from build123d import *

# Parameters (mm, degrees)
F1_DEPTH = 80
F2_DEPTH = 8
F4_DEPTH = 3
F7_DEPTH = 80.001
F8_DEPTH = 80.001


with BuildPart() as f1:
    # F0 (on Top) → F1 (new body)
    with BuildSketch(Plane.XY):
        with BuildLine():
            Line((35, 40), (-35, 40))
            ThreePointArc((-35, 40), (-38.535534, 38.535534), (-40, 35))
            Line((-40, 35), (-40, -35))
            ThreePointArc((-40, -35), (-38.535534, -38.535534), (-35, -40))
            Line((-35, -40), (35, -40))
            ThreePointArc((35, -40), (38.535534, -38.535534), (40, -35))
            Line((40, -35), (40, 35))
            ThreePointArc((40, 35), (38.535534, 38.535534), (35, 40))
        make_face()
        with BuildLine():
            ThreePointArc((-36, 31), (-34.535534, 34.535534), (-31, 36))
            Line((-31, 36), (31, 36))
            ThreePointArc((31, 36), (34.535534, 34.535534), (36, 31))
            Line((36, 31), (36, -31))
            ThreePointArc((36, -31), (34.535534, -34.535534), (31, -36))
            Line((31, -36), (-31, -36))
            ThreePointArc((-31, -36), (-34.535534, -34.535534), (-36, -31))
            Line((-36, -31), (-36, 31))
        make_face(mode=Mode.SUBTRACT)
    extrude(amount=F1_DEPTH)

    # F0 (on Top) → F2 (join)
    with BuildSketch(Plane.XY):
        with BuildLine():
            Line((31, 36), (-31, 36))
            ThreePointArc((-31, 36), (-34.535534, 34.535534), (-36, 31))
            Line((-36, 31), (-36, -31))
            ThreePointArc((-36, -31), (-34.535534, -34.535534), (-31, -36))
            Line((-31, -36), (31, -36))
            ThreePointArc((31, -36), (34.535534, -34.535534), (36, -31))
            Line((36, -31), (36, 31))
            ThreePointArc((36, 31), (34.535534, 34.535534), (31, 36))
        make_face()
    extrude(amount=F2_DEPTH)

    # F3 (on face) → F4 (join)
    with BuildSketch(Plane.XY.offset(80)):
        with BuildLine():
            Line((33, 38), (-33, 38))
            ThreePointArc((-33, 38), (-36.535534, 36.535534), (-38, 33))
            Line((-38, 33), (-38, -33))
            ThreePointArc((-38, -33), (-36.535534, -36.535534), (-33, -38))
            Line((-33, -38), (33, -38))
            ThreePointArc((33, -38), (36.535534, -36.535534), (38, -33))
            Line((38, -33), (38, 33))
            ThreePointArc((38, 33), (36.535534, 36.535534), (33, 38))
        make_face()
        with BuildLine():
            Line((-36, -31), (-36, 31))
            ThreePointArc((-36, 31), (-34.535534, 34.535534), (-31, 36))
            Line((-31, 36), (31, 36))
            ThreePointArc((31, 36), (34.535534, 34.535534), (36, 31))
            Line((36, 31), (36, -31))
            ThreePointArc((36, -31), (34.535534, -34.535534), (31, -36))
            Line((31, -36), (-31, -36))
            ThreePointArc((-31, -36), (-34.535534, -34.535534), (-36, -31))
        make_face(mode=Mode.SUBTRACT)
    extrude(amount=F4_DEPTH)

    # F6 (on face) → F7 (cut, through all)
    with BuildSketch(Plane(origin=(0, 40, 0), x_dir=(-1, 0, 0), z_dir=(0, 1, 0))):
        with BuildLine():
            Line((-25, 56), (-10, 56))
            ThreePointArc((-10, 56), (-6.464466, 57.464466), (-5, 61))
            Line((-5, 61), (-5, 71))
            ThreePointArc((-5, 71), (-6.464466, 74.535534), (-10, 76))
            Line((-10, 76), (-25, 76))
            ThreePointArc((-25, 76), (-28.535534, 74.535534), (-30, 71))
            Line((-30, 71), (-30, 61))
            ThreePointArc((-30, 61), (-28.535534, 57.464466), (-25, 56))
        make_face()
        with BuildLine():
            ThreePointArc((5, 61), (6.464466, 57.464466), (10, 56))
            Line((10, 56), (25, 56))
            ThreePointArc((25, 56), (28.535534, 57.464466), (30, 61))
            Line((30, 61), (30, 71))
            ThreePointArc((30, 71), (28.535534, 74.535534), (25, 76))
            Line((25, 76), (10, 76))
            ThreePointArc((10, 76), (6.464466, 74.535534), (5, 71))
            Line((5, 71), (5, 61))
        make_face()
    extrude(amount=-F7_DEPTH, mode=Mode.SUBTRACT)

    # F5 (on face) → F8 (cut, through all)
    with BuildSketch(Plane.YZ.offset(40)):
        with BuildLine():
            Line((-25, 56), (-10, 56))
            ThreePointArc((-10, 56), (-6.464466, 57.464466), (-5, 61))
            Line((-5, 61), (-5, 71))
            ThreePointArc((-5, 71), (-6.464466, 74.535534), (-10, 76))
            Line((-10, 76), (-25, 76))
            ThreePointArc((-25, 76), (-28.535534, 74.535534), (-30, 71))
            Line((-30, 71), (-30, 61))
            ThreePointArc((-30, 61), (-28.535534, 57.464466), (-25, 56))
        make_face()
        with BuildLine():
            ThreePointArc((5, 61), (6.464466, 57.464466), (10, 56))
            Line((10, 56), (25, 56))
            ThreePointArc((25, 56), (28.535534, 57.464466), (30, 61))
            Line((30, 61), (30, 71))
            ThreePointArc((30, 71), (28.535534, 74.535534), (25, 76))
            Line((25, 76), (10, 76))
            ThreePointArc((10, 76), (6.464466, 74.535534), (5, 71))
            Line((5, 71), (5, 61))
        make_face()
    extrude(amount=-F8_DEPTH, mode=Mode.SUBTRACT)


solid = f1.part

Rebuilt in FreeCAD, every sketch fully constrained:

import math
import FreeCAD as App
import Part
import Sketcher
from FreeCAD import Vector

doc = App.newDocument("Part")
body = doc.addObject("PartDesign::Body", "Body")

# Sketch on XY plane
sketch1 = body.newObject("Sketcher::SketchObject", "Sketch")
sketch1.AttachmentSupport = (doc.getObject("XY_Plane"), [""])
sketch1.MapMode = "FlatFace"
sketch1.addGeometry([
    Part.LineSegment(Vector(35, 40, 0), Vector(-35, 40, 0)),  # 0
    Part.ArcOfCircle(Part.Circle(Vector(-35, 35, 0), Vector(0, 0, 1), 5), math.radians(90), math.radians(180)),  # 1
    Part.LineSegment(Vector(-40, 35, 0), Vector(-40, -35, 0)),  # 2
    Part.ArcOfCircle(Part.Circle(Vector(-35, -35, 0), Vector(0, 0, 1), 5), math.radians(180), math.radians(270)),  # 3
    Part.LineSegment(Vector(-35, -40, 0), Vector(35, -40, 0)),  # 4
    Part.ArcOfCircle(Part.Circle(Vector(35, -35, 0), Vector(0, 0, 1), 5), math.radians(-90), math.radians(0)),  # 5
    Part.LineSegment(Vector(40, -35, 0), Vector(40, 35, 0)),  # 6
    Part.ArcOfCircle(Part.Circle(Vector(35, 35, 0), Vector(0, 0, 1), 5), math.radians(0), math.radians(90)),  # 7
    Part.LineSegment(Vector(-36, -31, 0), Vector(-36, 31, 0)),  # 8
    Part.ArcOfCircle(Part.Circle(Vector(-31, 31, 0), Vector(0, 0, 1), 5), math.radians(90), math.radians(180)),  # 9
    Part.LineSegment(Vector(-31, 36, 0), Vector(31, 36, 0)),  # 10
    Part.ArcOfCircle(Part.Circle(Vector(31, 31, 0), Vector(0, 0, 1), 5), math.radians(0), math.radians(90)),  # 11
    Part.LineSegment(Vector(36, 31, 0), Vector(36, -31, 0)),  # 12
    Part.ArcOfCircle(Part.Circle(Vector(31, -31, 0), Vector(0, 0, 1), 5), math.radians(-90), math.radians(0)),  # 13
    Part.LineSegment(Vector(31, -36, 0), Vector(-31, -36, 0)),  # 14
    Part.ArcOfCircle(Part.Circle(Vector(-31, -31, 0), Vector(0, 0, 1), 5), math.radians(180), math.radians(270)),  # 15
], False)
sketch1.addConstraint([
    Sketcher.Constraint("Tangent", 0, 2, 1, 1),
    Sketcher.Constraint("Tangent", 1, 2, 2, 1),
    Sketcher.Constraint("Tangent", 2, 2, 3, 1),
    Sketcher.Constraint("Tangent", 3, 2, 4, 1),
    Sketcher.Constraint("Tangent", 4, 2, 5, 1),
    Sketcher.Constraint("Tangent", 5, 2, 6, 1),
    Sketcher.Constraint("Tangent", 6, 2, 7, 1),
    Sketcher.Constraint("Tangent", 7, 2, 0, 1),
    Sketcher.Constraint("Tangent", 8, 2, 9, 2),
    Sketcher.Constraint("Tangent", 9, 1, 10, 1),
    Sketcher.Constraint("Tangent", 10, 2, 11, 2),
    Sketcher.Constraint("Tangent", 11, 1, 12, 1),
    Sketcher.Constraint("Tangent", 12, 2, 13, 2),
    Sketcher.Constraint("Tangent", 13, 1, 14, 1),
    Sketcher.Constraint("Tangent", 14, 2, 15, 2),
    Sketcher.Constraint("Tangent", 15, 1, 8, 1),
    Sketcher.Constraint("Horizontal", 0),
    Sketcher.Constraint("Vertical", 2),
    Sketcher.Constraint("Horizontal", 4),
    Sketcher.Constraint("Vertical", 6),
    Sketcher.Constraint("Vertical", 8),
    Sketcher.Constraint("Horizontal", 10),
    Sketcher.Constraint("Vertical", 12),
    Sketcher.Constraint("Horizontal", 14),
    Sketcher.Constraint("Equal", 1, 3),
    Sketcher.Constraint("Equal", 3, 5),
    Sketcher.Constraint("Equal", 5, 7),
    Sketcher.Constraint("Equal", 7, 9),
    Sketcher.Constraint("Equal", 9, 11),
    Sketcher.Constraint("Equal", 11, 13),
    Sketcher.Constraint("Equal", 13, 15),
    Sketcher.Constraint("Symmetric", 1, 3, 5, 3, -1, 1),
    Sketcher.Constraint("Symmetric", 9, 3, 13, 3, -1, 1),
    Sketcher.Constraint("Equal", 4, 2),
    Sketcher.Constraint("Equal", 14, 8),
    Sketcher.Constraint("Radius", 1, 5.0),
    Sketcher.Constraint("DistanceX", 0, 2, 0, 1, 70.0),
    Sketcher.Constraint("DistanceX", 10, 1, 10, 2, 62.0),
])
pad1 = body.newObject("PartDesign::Pad", "Pad")
pad1.Profile = sketch1
pad1.Length = 80

# Sketch on XY plane
sketch2 = body.newObject("Sketcher::SketchObject", "Sketch001")
sketch2.AttachmentSupport = (doc.getObject("XY_Plane"), [""])
sketch2.MapMode = "FlatFace"
sketch2.addGeometry([
    Part.LineSegment(Vector(31, 36, 0), Vector(-31, 36, 0)),  # 0
    Part.ArcOfCircle(Part.Circle(Vector(-31, 31, 0), Vector(0, 0, 1), 5), math.radians(90), math.radians(180)),  # 1
    Part.LineSegment(Vector(-36, 31, 0), Vector(-36, -31, 0)),  # 2
    Part.ArcOfCircle(Part.Circle(Vector(-31, -31, 0), Vector(0, 0, 1), 5), math.radians(180), math.radians(270)),  # 3
    Part.LineSegment(Vector(-31, -36, 0), Vector(31, -36, 0)),  # 4
    Part.ArcOfCircle(Part.Circle(Vector(31, -31, 0), Vector(0, 0, 1), 5), math.radians(-90), math.radians(0)),  # 5
    Part.LineSegment(Vector(36, -31, 0), Vector(36, 31, 0)),  # 6
    Part.ArcOfCircle(Part.Circle(Vector(31, 31, 0), Vector(0, 0, 1), 5), math.radians(0), math.radians(90)),  # 7
], False)
sketch2.addConstraint([
    Sketcher.Constraint("Tangent", 0, 2, 1, 1),
    Sketcher.Constraint("Tangent", 1, 2, 2, 1),
    Sketcher.Constraint("Tangent", 2, 2, 3, 1),
    Sketcher.Constraint("Tangent", 3, 2, 4, 1),
    Sketcher.Constraint("Tangent", 4, 2, 5, 1),
    Sketcher.Constraint("Tangent", 5, 2, 6, 1),
    Sketcher.Constraint("Tangent", 6, 2, 7, 1),
    Sketcher.Constraint("Tangent", 7, 2, 0, 1),
    Sketcher.Constraint("Horizontal", 0),
    Sketcher.Constraint("Vertical", 2),
    Sketcher.Constraint("Horizontal", 4),
    Sketcher.Constraint("Vertical", 6),
    Sketcher.Constraint("Equal", 1, 3),
    Sketcher.Constraint("Equal", 3, 5),
    Sketcher.Constraint("Equal", 5, 7),
    Sketcher.Constraint("Symmetric", 1, 3, 5, 3, -1, 1),
    Sketcher.Constraint("Equal", 4, 2),
    Sketcher.Constraint("Radius", 1, 5.0),
    Sketcher.Constraint("DistanceX", 0, 2, 0, 1, 62.0),
])
pad2 = body.newObject("PartDesign::Pad", "Pad001")
pad2.Profile = sketch2
pad2.Length = 8

# Sketch on XY plane
sketch3 = body.newObject("Sketcher::SketchObject", "Sketch002")
sketch3.AttachmentSupport = (doc.getObject("XY_Plane"), [""])
sketch3.MapMode = "FlatFace"
sketch3.AttachmentOffset = App.Placement(Vector(0, 0, 80), App.Rotation())
sketch3.addGeometry([
    Part.LineSegment(Vector(33, 38, 0), Vector(-33, 38, 0)),  # 0
    Part.ArcOfCircle(Part.Circle(Vector(-33, 33, 0), Vector(0, 0, 1), 5), math.radians(90), math.radians(180)),  # 1
    Part.LineSegment(Vector(-38, 33, 0), Vector(-38, -33, 0)),  # 2
    Part.ArcOfCircle(Part.Circle(Vector(-33, -33, 0), Vector(0, 0, 1), 5), math.radians(180), math.radians(270)),  # 3
    Part.LineSegment(Vector(-33, -38, 0), Vector(33, -38, 0)),  # 4
    Part.ArcOfCircle(Part.Circle(Vector(33, -33, 0), Vector(0, 0, 1), 5), math.radians(-90), math.radians(0)),  # 5
    Part.LineSegment(Vector(38, -33, 0), Vector(38, 33, 0)),  # 6
    Part.ArcOfCircle(Part.Circle(Vector(33, 33, 0), Vector(0, 0, 1), 5), math.radians(0), math.radians(90)),  # 7
    Part.ArcOfCircle(Part.Circle(Vector(-31, -31, 0), Vector(0, 0, 1), 5), math.radians(180), math.radians(270)),  # 8
    Part.LineSegment(Vector(-36, -31, 0), Vector(-36, 31, 0)),  # 9
    Part.ArcOfCircle(Part.Circle(Vector(-31, 31, 0), Vector(0, 0, 1), 5), math.radians(90), math.radians(180)),  # 10
    Part.LineSegment(Vector(-31, 36, 0), Vector(31, 36, 0)),  # 11
    Part.ArcOfCircle(Part.Circle(Vector(31, 31, 0), Vector(0, 0, 1), 5), math.radians(0), math.radians(90)),  # 12
    Part.LineSegment(Vector(36, 31, 0), Vector(36, -31, 0)),  # 13
    Part.ArcOfCircle(Part.Circle(Vector(31, -31, 0), Vector(0, 0, 1), 5), math.radians(-90), math.radians(0)),  # 14
    Part.LineSegment(Vector(31, -36, 0), Vector(-31, -36, 0)),  # 15
], False)
sketch3.addConstraint([
    Sketcher.Constraint("Tangent", 0, 2, 1, 1),
    Sketcher.Constraint("Tangent", 1, 2, 2, 1),
    Sketcher.Constraint("Tangent", 2, 2, 3, 1),
    Sketcher.Constraint("Tangent", 3, 2, 4, 1),
    Sketcher.Constraint("Tangent", 4, 2, 5, 1),
    Sketcher.Constraint("Tangent", 5, 2, 6, 1),
    Sketcher.Constraint("Tangent", 6, 2, 7, 1),
    Sketcher.Constraint("Tangent", 7, 2, 0, 1),
    Sketcher.Constraint("Tangent", 8, 1, 9, 1),
    Sketcher.Constraint("Tangent", 9, 2, 10, 2),
    Sketcher.Constraint("Tangent", 10, 1, 11, 1),
    Sketcher.Constraint("Tangent", 11, 2, 12, 2),
    Sketcher.Constraint("Tangent", 12, 1, 13, 1),
    Sketcher.Constraint("Tangent", 13, 2, 14, 2),
    Sketcher.Constraint("Tangent", 14, 1, 15, 1),
    Sketcher.Constraint("Tangent", 15, 2, 8, 2),
    Sketcher.Constraint("Horizontal", 0),
    Sketcher.Constraint("Vertical", 2),
    Sketcher.Constraint("Horizontal", 4),
    Sketcher.Constraint("Vertical", 6),
    Sketcher.Constraint("Vertical", 9),
    Sketcher.Constraint("Horizontal", 11),
    Sketcher.Constraint("Vertical", 13),
    Sketcher.Constraint("Horizontal", 15),
    Sketcher.Constraint("Equal", 1, 3),
    Sketcher.Constraint("Equal", 3, 5),
    Sketcher.Constraint("Equal", 5, 7),
    Sketcher.Constraint("Equal", 7, 8),
    Sketcher.Constraint("Equal", 8, 10),
    Sketcher.Constraint("Equal", 10, 12),
    Sketcher.Constraint("Equal", 12, 14),
    Sketcher.Constraint("Symmetric", 1, 3, 5, 3, -1, 1),
    Sketcher.Constraint("Symmetric", 8, 3, 12, 3, -1, 1),
    Sketcher.Constraint("Equal", 4, 2),
    Sketcher.Constraint("Equal", 15, 9),
    Sketcher.Constraint("Radius", 1, 5.0),
    Sketcher.Constraint("DistanceX", 0, 2, 0, 1, 66.0),
    Sketcher.Constraint("DistanceX", 11, 1, 11, 2, 62.0),
])
pad3 = body.newObject("PartDesign::Pad", "Pad002")
pad3.Profile = sketch3
pad3.Length = 3

# Sketch on XZ plane
sketch4 = body.newObject("Sketcher::SketchObject", "Sketch003")
sketch4.AttachmentSupport = (doc.getObject("XZ_Plane"), [""])
sketch4.MapMode = "FlatFace"
sketch4.AttachmentOffset = App.Placement(Vector(0, 0, -40), App.Rotation())
sketch4.addGeometry([
    Part.LineSegment(Vector(25, 56, 0), Vector(10, 56, 0)),  # 0
    Part.ArcOfCircle(Part.Circle(Vector(10, 61, 0), Vector(0, 0, 1), 5), math.radians(180), math.radians(270)),  # 1
    Part.LineSegment(Vector(5, 61, 0), Vector(5, 71, 0)),  # 2
    Part.ArcOfCircle(Part.Circle(Vector(10, 71, 0), Vector(0, 0, 1), 5), math.radians(90), math.radians(180)),  # 3
    Part.LineSegment(Vector(10, 76, 0), Vector(25, 76, 0)),  # 4
    Part.ArcOfCircle(Part.Circle(Vector(25, 71, 0), Vector(0, 0, 1), 5), math.radians(0), math.radians(90)),  # 5
    Part.LineSegment(Vector(30, 71, 0), Vector(30, 61, 0)),  # 6
    Part.ArcOfCircle(Part.Circle(Vector(25, 61, 0), Vector(0, 0, 1), 5), math.radians(-90), math.radians(0)),  # 7
    Part.ArcOfCircle(Part.Circle(Vector(-10, 61, 0), Vector(0, 0, 1), 5), math.radians(-90), math.radians(0)),  # 8
    Part.LineSegment(Vector(-10, 56, 0), Vector(-25, 56, 0)),  # 9
    Part.ArcOfCircle(Part.Circle(Vector(-25, 61, 0), Vector(0, 0, 1), 5), math.radians(180), math.radians(270)),  # 10
    Part.LineSegment(Vector(-30, 61, 0), Vector(-30, 71, 0)),  # 11
    Part.ArcOfCircle(Part.Circle(Vector(-25, 71, 0), Vector(0, 0, 1), 5), math.radians(90), math.radians(180)),  # 12
    Part.LineSegment(Vector(-25, 76, 0), Vector(-10, 76, 0)),  # 13
    Part.ArcOfCircle(Part.Circle(Vector(-10, 71, 0), Vector(0, 0, 1), 5), math.radians(0), math.radians(90)),  # 14
    Part.LineSegment(Vector(-5, 71, 0), Vector(-5, 61, 0)),  # 15
], False)
sketch4.addConstraint([
    Sketcher.Constraint("Tangent", 0, 2, 1, 2),
    Sketcher.Constraint("Tangent", 1, 1, 2, 1),
    Sketcher.Constraint("Tangent", 2, 2, 3, 2),
    Sketcher.Constraint("Tangent", 3, 1, 4, 1),
    Sketcher.Constraint("Tangent", 4, 2, 5, 2),
    Sketcher.Constraint("Tangent", 5, 1, 6, 1),
    Sketcher.Constraint("Tangent", 6, 2, 7, 2),
    Sketcher.Constraint("Tangent", 7, 1, 0, 1),
    Sketcher.Constraint("Tangent", 8, 1, 9, 1),
    Sketcher.Constraint("Tangent", 9, 2, 10, 2),
    Sketcher.Constraint("Tangent", 10, 1, 11, 1),
    Sketcher.Constraint("Tangent", 11, 2, 12, 2),
    Sketcher.Constraint("Tangent", 12, 1, 13, 1),
    Sketcher.Constraint("Tangent", 13, 2, 14, 2),
    Sketcher.Constraint("Tangent", 14, 1, 15, 1),
    Sketcher.Constraint("Tangent", 15, 2, 8, 2),
    Sketcher.Constraint("Horizontal", 0),
    Sketcher.Constraint("Vertical", 2),
    Sketcher.Constraint("Horizontal", 4),
    Sketcher.Constraint("Vertical", 6),
    Sketcher.Constraint("Horizontal", 9),
    Sketcher.Constraint("Vertical", 11),
    Sketcher.Constraint("Horizontal", 13),
    Sketcher.Constraint("Vertical", 15),
    Sketcher.Constraint("Equal", 1, 3),
    Sketcher.Constraint("Equal", 3, 5),
    Sketcher.Constraint("Equal", 5, 7),
    Sketcher.Constraint("Equal", 7, 8),
    Sketcher.Constraint("Equal", 8, 10),
    Sketcher.Constraint("Equal", 10, 12),
    Sketcher.Constraint("Equal", 12, 14),
    Sketcher.Constraint("Symmetric", 1, 3, 8, 3, -2),
    Sketcher.Constraint("Symmetric", 5, 3, 12, 3, -2),
    Sketcher.Constraint("Radius", 1, 5.0),
    Sketcher.Constraint("DistanceX", 0, 2, 0, 1, 15.0),
    Sketcher.Constraint("DistanceY", 2, 1, 2, 2, 10.0),
    Sketcher.Constraint("DistanceX", -1, 1, 1, 3, 10.0),
    Sketcher.Constraint("DistanceY", -1, 1, 1, 3, 61.0),
])
pocket1 = body.newObject("PartDesign::Pocket", "Pocket")
pocket1.Profile = sketch4
pocket1.Type = "ThroughAll"
pocket1.Reversed = True

# Sketch on YZ plane
sketch5 = body.newObject("Sketcher::SketchObject", "Sketch004")
sketch5.AttachmentSupport = (doc.getObject("YZ_Plane"), [""])
sketch5.MapMode = "FlatFace"
sketch5.AttachmentOffset = App.Placement(Vector(0, 0, 40), App.Rotation())
sketch5.addGeometry([
    Part.LineSegment(Vector(-25, 56, 0), Vector(-10, 56, 0)),  # 0
    Part.ArcOfCircle(Part.Circle(Vector(-10, 61, 0), Vector(0, 0, 1), 5), math.radians(-90), math.radians(0)),  # 1
    Part.LineSegment(Vector(-5, 61, 0), Vector(-5, 71, 0)),  # 2
    Part.ArcOfCircle(Part.Circle(Vector(-10, 71, 0), Vector(0, 0, 1), 5), math.radians(0), math.radians(90)),  # 3
    Part.LineSegment(Vector(-10, 76, 0), Vector(-25, 76, 0)),  # 4
    Part.ArcOfCircle(Part.Circle(Vector(-25, 71, 0), Vector(0, 0, 1), 5), math.radians(90), math.radians(180)),  # 5
    Part.LineSegment(Vector(-30, 71, 0), Vector(-30, 61, 0)),  # 6
    Part.ArcOfCircle(Part.Circle(Vector(-25, 61, 0), Vector(0, 0, 1), 5), math.radians(180), math.radians(270)),  # 7
    Part.ArcOfCircle(Part.Circle(Vector(10, 61, 0), Vector(0, 0, 1), 5), math.radians(180), math.radians(270)),  # 8
    Part.LineSegment(Vector(10, 56, 0), Vector(25, 56, 0)),  # 9
    Part.ArcOfCircle(Part.Circle(Vector(25, 61, 0), Vector(0, 0, 1), 5), math.radians(-90), math.radians(0)),  # 10
    Part.LineSegment(Vector(30, 61, 0), Vector(30, 71, 0)),  # 11
    Part.ArcOfCircle(Part.Circle(Vector(25, 71, 0), Vector(0, 0, 1), 5), math.radians(0), math.radians(90)),  # 12
    Part.LineSegment(Vector(25, 76, 0), Vector(10, 76, 0)),  # 13
    Part.ArcOfCircle(Part.Circle(Vector(10, 71, 0), Vector(0, 0, 1), 5), math.radians(90), math.radians(180)),  # 14
    Part.LineSegment(Vector(5, 71, 0), Vector(5, 61, 0)),  # 15
], False)
sketch5.addConstraint([
    Sketcher.Constraint("Tangent", 0, 2, 1, 1),
    Sketcher.Constraint("Tangent", 1, 2, 2, 1),
    Sketcher.Constraint("Tangent", 2, 2, 3, 1),
    Sketcher.Constraint("Tangent", 3, 2, 4, 1),
    Sketcher.Constraint("Tangent", 4, 2, 5, 1),
    Sketcher.Constraint("Tangent", 5, 2, 6, 1),
    Sketcher.Constraint("Tangent", 6, 2, 7, 1),
    Sketcher.Constraint("Tangent", 7, 2, 0, 1),
    Sketcher.Constraint("Tangent", 8, 2, 9, 1),
    Sketcher.Constraint("Tangent", 9, 2, 10, 1),
    Sketcher.Constraint("Tangent", 10, 2, 11, 1),
    Sketcher.Constraint("Tangent", 11, 2, 12, 1),
    Sketcher.Constraint("Tangent", 12, 2, 13, 1),
    Sketcher.Constraint("Tangent", 13, 2, 14, 1),
    Sketcher.Constraint("Tangent", 14, 2, 15, 1),
    Sketcher.Constraint("Tangent", 15, 2, 8, 1),
    Sketcher.Constraint("Horizontal", 0),
    Sketcher.Constraint("Vertical", 2),
    Sketcher.Constraint("Horizontal", 4),
    Sketcher.Constraint("Vertical", 6),
    Sketcher.Constraint("Horizontal", 9),
    Sketcher.Constraint("Vertical", 11),
    Sketcher.Constraint("Horizontal", 13),
    Sketcher.Constraint("Vertical", 15),
    Sketcher.Constraint("Equal", 1, 3),
    Sketcher.Constraint("Equal", 3, 5),
    Sketcher.Constraint("Equal", 5, 7),
    Sketcher.Constraint("Equal", 7, 8),
    Sketcher.Constraint("Equal", 8, 10),
    Sketcher.Constraint("Equal", 10, 12),
    Sketcher.Constraint("Equal", 12, 14),
    Sketcher.Constraint("Symmetric", 1, 3, 8, 3, -2),
    Sketcher.Constraint("Symmetric", 5, 3, 12, 3, -2),
    Sketcher.Constraint("Radius", 1, 5.0),
    Sketcher.Constraint("DistanceX", 0, 1, 0, 2, 15.0),
    Sketcher.Constraint("DistanceY", 2, 1, 2, 2, 10.0),
    Sketcher.Constraint("DistanceX", 1, 3, -1, 1, 10.0),
    Sketcher.Constraint("DistanceY", -1, 1, 1, 3, 61.0),
])
pocket2 = body.newObject("PartDesign::Pocket", "Pocket001")
pocket2.Profile = sketch5
pocket2.Type = "ThroughAll"

doc.recompute()
